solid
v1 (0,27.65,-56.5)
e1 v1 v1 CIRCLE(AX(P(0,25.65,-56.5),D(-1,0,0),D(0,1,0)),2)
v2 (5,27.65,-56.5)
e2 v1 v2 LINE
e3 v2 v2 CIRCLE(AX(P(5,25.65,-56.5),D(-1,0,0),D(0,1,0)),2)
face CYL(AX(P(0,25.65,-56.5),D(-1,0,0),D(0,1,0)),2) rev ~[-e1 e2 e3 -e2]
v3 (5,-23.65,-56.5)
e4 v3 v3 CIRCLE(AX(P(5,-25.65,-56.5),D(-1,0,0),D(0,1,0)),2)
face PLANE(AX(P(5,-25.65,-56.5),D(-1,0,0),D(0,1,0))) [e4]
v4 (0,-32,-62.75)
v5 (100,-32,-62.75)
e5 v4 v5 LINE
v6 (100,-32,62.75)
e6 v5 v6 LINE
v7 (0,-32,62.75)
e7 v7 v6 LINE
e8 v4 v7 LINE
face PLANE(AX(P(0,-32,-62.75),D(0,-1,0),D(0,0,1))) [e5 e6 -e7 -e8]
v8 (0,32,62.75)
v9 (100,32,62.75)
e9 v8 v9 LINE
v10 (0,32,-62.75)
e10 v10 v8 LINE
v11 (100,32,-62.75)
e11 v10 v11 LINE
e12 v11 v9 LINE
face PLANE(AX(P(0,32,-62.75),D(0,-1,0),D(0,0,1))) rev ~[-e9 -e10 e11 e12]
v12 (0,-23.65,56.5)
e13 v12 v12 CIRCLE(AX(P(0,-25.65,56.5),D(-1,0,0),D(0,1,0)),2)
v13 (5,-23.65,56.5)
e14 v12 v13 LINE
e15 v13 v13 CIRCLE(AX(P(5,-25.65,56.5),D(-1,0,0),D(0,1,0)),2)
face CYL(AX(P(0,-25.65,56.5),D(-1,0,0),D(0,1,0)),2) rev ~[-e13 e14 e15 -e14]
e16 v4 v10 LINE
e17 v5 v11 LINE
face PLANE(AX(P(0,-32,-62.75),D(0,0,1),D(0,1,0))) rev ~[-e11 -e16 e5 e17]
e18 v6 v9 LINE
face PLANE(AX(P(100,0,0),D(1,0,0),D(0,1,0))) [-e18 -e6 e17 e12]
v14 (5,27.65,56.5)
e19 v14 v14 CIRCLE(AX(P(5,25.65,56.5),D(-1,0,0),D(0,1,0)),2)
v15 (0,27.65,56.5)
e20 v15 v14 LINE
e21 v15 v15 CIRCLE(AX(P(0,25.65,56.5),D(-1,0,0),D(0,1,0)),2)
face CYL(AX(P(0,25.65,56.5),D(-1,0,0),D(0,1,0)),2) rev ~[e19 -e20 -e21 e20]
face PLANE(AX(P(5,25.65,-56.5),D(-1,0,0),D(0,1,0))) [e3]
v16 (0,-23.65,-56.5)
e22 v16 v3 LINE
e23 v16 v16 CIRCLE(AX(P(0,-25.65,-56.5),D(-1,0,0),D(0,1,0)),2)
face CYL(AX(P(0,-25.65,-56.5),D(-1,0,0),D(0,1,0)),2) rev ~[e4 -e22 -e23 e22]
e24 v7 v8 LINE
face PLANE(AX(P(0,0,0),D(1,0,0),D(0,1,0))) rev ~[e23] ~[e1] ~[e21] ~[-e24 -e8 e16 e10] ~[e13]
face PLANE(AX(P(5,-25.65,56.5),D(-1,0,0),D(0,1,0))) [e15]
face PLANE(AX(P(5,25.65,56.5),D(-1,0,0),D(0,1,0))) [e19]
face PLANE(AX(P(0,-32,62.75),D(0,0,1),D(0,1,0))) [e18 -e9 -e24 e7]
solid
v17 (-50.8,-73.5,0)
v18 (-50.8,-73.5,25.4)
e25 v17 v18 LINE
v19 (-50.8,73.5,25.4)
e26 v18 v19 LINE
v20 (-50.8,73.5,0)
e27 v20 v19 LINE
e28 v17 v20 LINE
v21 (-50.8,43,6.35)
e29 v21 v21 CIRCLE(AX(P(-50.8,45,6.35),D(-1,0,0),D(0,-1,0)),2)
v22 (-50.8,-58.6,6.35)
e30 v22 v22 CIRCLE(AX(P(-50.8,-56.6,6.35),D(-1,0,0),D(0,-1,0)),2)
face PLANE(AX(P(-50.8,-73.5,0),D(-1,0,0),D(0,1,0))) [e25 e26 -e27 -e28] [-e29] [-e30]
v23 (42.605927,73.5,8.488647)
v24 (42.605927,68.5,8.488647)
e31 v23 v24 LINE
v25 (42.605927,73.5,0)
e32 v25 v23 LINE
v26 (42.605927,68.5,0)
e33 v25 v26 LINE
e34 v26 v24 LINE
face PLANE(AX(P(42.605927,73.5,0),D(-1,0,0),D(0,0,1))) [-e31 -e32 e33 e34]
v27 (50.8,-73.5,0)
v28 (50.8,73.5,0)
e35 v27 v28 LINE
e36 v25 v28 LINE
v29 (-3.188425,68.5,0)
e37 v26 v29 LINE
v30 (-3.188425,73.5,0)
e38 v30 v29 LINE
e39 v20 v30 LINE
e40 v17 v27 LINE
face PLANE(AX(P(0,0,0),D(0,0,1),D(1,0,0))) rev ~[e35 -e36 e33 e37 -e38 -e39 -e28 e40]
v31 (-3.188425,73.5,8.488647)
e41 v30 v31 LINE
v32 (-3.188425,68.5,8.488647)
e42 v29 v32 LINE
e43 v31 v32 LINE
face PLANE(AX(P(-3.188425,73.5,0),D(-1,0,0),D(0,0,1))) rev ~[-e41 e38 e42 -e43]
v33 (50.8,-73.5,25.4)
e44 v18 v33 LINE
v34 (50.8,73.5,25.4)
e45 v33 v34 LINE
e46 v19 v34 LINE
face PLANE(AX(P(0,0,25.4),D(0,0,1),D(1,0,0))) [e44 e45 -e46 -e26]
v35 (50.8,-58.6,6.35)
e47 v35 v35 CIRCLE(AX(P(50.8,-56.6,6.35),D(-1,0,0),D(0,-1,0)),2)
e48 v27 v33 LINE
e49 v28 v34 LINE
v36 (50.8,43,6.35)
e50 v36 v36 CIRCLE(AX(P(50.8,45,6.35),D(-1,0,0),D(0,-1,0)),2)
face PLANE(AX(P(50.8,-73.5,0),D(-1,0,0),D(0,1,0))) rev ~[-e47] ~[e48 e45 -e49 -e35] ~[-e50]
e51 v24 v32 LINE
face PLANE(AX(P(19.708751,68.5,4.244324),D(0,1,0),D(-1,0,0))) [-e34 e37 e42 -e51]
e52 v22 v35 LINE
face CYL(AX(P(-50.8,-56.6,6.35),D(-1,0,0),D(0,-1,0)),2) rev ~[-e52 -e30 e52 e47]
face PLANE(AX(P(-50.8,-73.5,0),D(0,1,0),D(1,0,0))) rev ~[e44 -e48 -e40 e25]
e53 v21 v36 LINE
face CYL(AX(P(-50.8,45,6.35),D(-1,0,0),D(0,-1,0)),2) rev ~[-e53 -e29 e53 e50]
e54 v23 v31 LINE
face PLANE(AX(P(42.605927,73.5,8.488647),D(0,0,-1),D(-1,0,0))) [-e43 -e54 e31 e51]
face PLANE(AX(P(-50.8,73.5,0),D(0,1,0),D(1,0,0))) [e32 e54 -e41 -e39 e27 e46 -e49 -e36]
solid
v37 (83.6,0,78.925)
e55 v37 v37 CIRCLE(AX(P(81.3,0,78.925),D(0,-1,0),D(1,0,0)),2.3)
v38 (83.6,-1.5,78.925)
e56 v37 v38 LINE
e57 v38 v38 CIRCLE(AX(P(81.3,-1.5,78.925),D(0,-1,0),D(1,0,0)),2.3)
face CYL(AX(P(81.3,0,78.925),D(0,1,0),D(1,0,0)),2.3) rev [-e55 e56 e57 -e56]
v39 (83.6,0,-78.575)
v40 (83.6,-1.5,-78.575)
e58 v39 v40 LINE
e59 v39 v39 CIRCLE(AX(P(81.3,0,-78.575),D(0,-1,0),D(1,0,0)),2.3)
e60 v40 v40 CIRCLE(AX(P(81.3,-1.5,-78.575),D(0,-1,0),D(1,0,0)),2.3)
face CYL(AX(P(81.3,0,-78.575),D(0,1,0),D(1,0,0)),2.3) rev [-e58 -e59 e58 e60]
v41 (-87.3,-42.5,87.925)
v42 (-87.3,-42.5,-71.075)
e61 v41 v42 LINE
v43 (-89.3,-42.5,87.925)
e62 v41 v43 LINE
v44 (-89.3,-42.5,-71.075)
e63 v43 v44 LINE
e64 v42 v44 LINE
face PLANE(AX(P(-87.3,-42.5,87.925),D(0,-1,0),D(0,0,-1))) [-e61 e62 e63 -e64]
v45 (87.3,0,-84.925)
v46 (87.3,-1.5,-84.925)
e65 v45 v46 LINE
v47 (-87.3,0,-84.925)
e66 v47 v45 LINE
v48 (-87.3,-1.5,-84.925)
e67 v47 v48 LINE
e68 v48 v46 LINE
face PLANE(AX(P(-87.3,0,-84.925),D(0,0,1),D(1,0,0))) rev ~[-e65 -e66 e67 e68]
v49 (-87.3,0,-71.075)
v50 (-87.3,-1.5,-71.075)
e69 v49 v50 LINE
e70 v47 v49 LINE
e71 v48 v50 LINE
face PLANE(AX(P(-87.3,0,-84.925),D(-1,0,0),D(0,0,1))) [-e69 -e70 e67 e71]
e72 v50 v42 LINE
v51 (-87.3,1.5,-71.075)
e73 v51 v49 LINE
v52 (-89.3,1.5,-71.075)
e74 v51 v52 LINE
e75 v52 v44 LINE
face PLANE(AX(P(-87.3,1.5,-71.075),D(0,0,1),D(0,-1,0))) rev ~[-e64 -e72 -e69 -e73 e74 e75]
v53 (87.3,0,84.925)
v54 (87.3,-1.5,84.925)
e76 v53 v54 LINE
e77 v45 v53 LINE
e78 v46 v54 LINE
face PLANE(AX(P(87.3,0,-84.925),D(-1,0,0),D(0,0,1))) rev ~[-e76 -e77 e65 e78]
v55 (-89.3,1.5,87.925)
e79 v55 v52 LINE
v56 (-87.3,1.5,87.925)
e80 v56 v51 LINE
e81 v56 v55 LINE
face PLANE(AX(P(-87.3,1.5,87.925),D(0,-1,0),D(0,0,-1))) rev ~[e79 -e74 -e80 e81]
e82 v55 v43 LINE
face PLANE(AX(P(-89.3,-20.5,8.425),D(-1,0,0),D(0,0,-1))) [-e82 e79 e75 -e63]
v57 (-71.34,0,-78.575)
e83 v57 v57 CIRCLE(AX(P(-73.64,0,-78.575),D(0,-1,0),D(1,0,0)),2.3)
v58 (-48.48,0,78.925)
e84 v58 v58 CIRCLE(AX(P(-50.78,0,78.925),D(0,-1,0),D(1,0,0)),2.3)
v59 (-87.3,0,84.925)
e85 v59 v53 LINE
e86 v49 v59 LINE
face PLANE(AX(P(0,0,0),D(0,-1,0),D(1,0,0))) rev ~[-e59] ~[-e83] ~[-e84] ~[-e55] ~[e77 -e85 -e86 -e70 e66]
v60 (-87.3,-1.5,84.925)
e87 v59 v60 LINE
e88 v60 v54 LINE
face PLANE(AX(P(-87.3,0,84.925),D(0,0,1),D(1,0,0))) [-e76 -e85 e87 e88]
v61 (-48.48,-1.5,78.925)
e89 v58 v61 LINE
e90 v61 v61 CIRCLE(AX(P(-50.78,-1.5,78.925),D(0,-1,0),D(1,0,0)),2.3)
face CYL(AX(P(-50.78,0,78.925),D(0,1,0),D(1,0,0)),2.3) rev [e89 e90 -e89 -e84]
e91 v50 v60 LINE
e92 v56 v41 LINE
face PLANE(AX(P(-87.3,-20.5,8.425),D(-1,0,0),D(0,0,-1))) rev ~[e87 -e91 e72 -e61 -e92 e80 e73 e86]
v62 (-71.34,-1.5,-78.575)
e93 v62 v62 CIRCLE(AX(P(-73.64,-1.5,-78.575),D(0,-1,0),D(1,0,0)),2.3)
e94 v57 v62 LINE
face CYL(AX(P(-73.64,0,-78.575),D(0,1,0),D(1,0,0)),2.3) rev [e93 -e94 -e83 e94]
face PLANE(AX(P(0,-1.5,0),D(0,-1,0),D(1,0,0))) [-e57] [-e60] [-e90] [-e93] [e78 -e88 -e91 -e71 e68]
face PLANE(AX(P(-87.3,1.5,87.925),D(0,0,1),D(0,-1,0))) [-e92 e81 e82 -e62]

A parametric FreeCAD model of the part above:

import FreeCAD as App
import Part
import Sketcher
from FreeCAD import Vector
Q = App.Units.Quantity

doc = App.newDocument("Part")
body = doc.addObject("PartDesign::Body", "Body")

sketch1 = doc.addObject("Sketcher::SketchObject", "Sketch")
body.addObject(sketch1)
sketch1.AttachmentSupport = (doc.XZ_Plane, [""])
sketch1.MapMode = "FlatFace"
sketch1.addGeometry([
    Part.LineSegment(Vector(-87.3, 84.9, 0), Vector(-87.3, -84.9, 0)),
    Part.LineSegment(Vector(-87.3, -84.9, 0), Vector(87.3, -84.9, 0)),
    Part.LineSegment(Vector(87.3, -84.9, 0), Vector(87.3, 84.9, 0)),
    Part.LineSegment(Vector(87.3, 84.9, 0), Vector(-87.3, 84.9, 0)),
    Part.Circle(Vector(-73.6, -78.6, 0), Vector(0, 0, 1), 2.3),
    Part.Circle(Vector(81.3, -78.6, 0), Vector(0, 0, 1), 2.3),
    Part.Circle(Vector(-50.8, 78.9, 0), Vector(0, 0, 1), 2.3),
    Part.Circle(Vector(81.3, 78.9, 0), Vector(0, 0, 1), 2.3),
], False)
sketch1.addConstraint([
    Sketcher.Constraint("Coincident", 0, 2, 1, 1),
    Sketcher.Constraint("Coincident", 1, 2, 2, 1),
    Sketcher.Constraint("Coincident", 2, 2, 3, 1),
    Sketcher.Constraint("Coincident", 3, 2, 0, 1),
    Sketcher.Constraint("Vertical", 0),
    Sketcher.Constraint("Horizontal", 1),
    Sketcher.Constraint("Vertical", 2),
    Sketcher.Constraint("Horizontal", 3),
    Sketcher.Constraint("Equal", 4, 5),
    Sketcher.Constraint("Equal", 5, 6),
    Sketcher.Constraint("Equal", 6, 7),
    Sketcher.Constraint("Symmetric", 0, 2, 2, 2, -1, 1),
    Sketcher.Constraint("Horizontal", 4, 3, 5, 3),
    Sketcher.Constraint("Horizontal", 6, 3, 7, 3),
    Sketcher.Constraint("Vertical", 5, 3, 7, 3),
    Sketcher.Constraint("Diameter", 4, Q("4.6 mm")),
    Sketcher.Constraint("DistanceX", 1, 1, 1, 2, Q("174.6 mm")),
    Sketcher.Constraint("DistanceX", 5, 3, 1, 2, Q("6 mm")),
    Sketcher.Constraint("DistanceY", 7, 3, 2, 2, Q("6 mm")),
    Sketcher.Constraint("DistanceY", 0, 2, 0, 1, Q("169.85 mm")),
    Sketcher.Constraint("DistanceY", 4, 3, 6, 3, Q("157.5 mm")),
    Sketcher.Constraint("DistanceX", 4, 3, -1, 1, Q("73.64 mm")),
    Sketcher.Constraint("DistanceX", 6, 3, -1, 1, Q("50.78 mm")),
])
pad1 = doc.addObject("PartDesign::Pad", "Pad")
body.addObject(pad1)
pad1.Profile = sketch1
pad1.Length = 1.5

sketch2 = doc.addObject("Sketcher::SketchObject", "Sketch001")
body.addObject(sketch2)
sketch2.AttachmentSupport = (doc.YZ_Plane, [""])
sketch2.MapMode = "FlatFace"
sketch2.AttachmentOffset = App.Placement(Vector(0, 0, -87.3), App.Rotation())
sketch2.addGeometry([
    Part.LineSegment(Vector(-42, 88, 0), Vector(2, 88, 0)),
    Part.LineSegment(Vector(2, 88, 0), Vector(2, -71, 0)),
    Part.LineSegment(Vector(2, -71, 0), Vector(-42, -71, 0)),
    Part.LineSegment(Vector(-42, -71, 0), Vector(-42, 88, 0)),
], False)
sketch2.addConstraint([
    Sketcher.Constraint("Coincident", 0, 2, 1, 1),
    Sketcher.Constraint("Coincident", 1, 2, 2, 1),
    Sketcher.Constraint("Coincident", 2, 2, 3, 1),
    Sketcher.Constraint("Coincident", 3, 2, 0, 1),
    Sketcher.Constraint("Horizontal", 0),
    Sketcher.Constraint("Vertical", 1),
    Sketcher.Constraint("Horizontal", 2),
    Sketcher.Constraint("Vertical", 3),
    Sketcher.Constraint("DistanceX", 0, 1, 0, 2, Q("44 mm")),
    Sketcher.Constraint("DistanceY", 1, 2, 1, 1, Q("159 mm")),
    Sketcher.Constraint("DistanceX", -1, 1, 0, 2, Q("1.5 mm")),
    Sketcher.Constraint("DistanceY", -1, 1, 0, 2, Q("87.925 mm")),
])
pad2 = doc.addObject("PartDesign::Pad", "Pad001")
body.addObject(pad2)
pad2.Profile = sketch2
pad2.Length = 2
pad2.Reversed = True
body2 = doc.addObject("PartDesign::Body", "Body001")

sketch3 = doc.addObject("Sketcher::SketchObject", "Sketch002")
body2.addObject(sketch3)
sketch3.AttachmentSupport = (doc.getObject("YZ_Plane001"), [""])
sketch3.MapMode = "FlatFace"
sketch3.addGeometry([
    Part.LineSegment(Vector(-32, 63, 0), Vector(-32, -63, 0)),
    Part.LineSegment(Vector(-32, -63, 0), Vector(32, -63, 0)),
    Part.LineSegment(Vector(32, -63, 0), Vector(32, 63, 0)),
    Part.LineSegment(Vector(32, 63, 0), Vector(-32, 63, 0)),
], False)
sketch3.addConstraint([
    Sketcher.Constraint("Coincident", 0, 2, 1, 1),
    Sketcher.Constraint("Coincident", 1, 2, 2, 1),
    Sketcher.Constraint("Coincident", 2, 2, 3, 1),
    Sketcher.Constraint("Coincident", 3, 2, 0, 1),
    Sketcher.Constraint("Vertical", 0),
    Sketcher.Constraint("Horizontal", 1),
    Sketcher.Constraint("Vertical", 2),
    Sketcher.Constraint("Horizontal", 3),
    Sketcher.Constraint("Symmetric", 0, 2, 2, 2, -1, 1),
    Sketcher.Constraint("DistanceX", 1, 1, 1, 2, Q("64 mm")),
    Sketcher.Constraint("DistanceY", 0, 2, 0, 1, Q("125.5 mm")),
])
pad3 = doc.addObject("PartDesign::Pad", "Pad002")
body2.addObject(pad3)
pad3.Profile = sketch3
pad3.Length = 100

sketch4 = doc.addObject("Sketcher::SketchObject", "Sketch003")
body2.addObject(sketch4)
sketch4.AttachmentSupport = (doc.getObject("YZ_Plane001"), [""])
sketch4.MapMode = "FlatFace"
sketch4.addGeometry([
    Part.Circle(Vector(-25.6, 56.5, 0), Vector(0, 0, 1), 2),
    Part.Circle(Vector(25.6, 56.5, 0), Vector(0, 0, 1), 2),
    Part.Circle(Vector(25.6, -56.5, 0), Vector(0, 0, 1), 2),
    Part.Circle(Vector(-25.6, -56.5, 0), Vector(0, 0, 1), 2),
], False)
sketch4.addConstraint([
    Sketcher.Constraint("Equal", 0, 1),
    Sketcher.Constraint("Equal", 1, 2),
    Sketcher.Constraint("Equal", 2, 3),
    Sketcher.Constraint("Symmetric", 0, 3, 2, 3, -1, 1),
    Sketcher.Constraint("Symmetric", 1, 3, 3, 3, -1, 1),
    Sketcher.Constraint("Symmetric", 0, 3, 1, 3, -2),
    Sketcher.Constraint("Diameter", 0, Q("4 mm")),
    Sketcher.Constraint("DistanceY", 2, 3, 1, 3, Q("113 mm")),
    Sketcher.Constraint("DistanceX", 0, 3, 1, 3, Q("51.3 mm")),
])
pocket1 = doc.addObject("PartDesign::Pocket", "Pocket")
body2.addObject(pocket1)
pocket1.Profile = sketch4
pocket1.Length = 5
pocket1.Reversed = True
body3 = doc.addObject("PartDesign::Body", "Body002")

sketch5 = doc.addObject("Sketcher::SketchObject", "Sketch004")
body3.addObject(sketch5)
sketch5.AttachmentSupport = (doc.getObject("XY_Plane002"), [""])
sketch5.MapMode = "FlatFace"
sketch5.addGeometry([
    Part.LineSegment(Vector(-51, 74, 0), Vector(-51, -74, 0)),
    Part.LineSegment(Vector(-51, -74, 0), Vector(51, -74, 0)),
    Part.LineSegment(Vector(51, -74, 0), Vector(51, 74, 0)),
    Part.LineSegment(Vector(51, 74, 0), Vector(-51, 74, 0)),
], False)
sketch5.addConstraint([
    Sketcher.Constraint("Coincident", 0, 2, 1, 1),
    Sketcher.Constraint("Coincident", 1, 2, 2, 1),
    Sketcher.Constraint("Coincident", 2, 2, 3, 1),
    Sketcher.Constraint("Coincident", 3, 2, 0, 1),
    Sketcher.Constraint("Vertical", 0),
    Sketcher.Constraint("Horizontal", 1),
    Sketcher.Constraint("Vertical", 2),
    Sketcher.Constraint("Horizontal", 3),
    Sketcher.Constraint("Symmetric", 0, 2, 2, 2, -1, 1),
    Sketcher.Constraint("DistanceY", 0, 2, 0, 1, Q("147 mm")),
    Sketcher.Constraint("DistanceX", 1, 1, 1, 2, Q("101.6 mm")),
])
pad4 = doc.addObject("PartDesign::Pad", "Pad003")
body3.addObject(pad4)
pad4.Profile = sketch5
pad4.Length = 25.4

sketch6 = doc.addObject("Sketcher::SketchObject", "Sketch005")
body3.addObject(sketch6)
sketch6.AttachmentSupport = (doc.getObject("XZ_Plane002"), [""])
sketch6.MapMode = "FlatFace"
sketch6.AttachmentOffset = App.Placement(Vector(0, 0, -73.5), App.Rotation())
sketch6.addGeometry([
    Part.LineSegment(Vector(43, 8, 0), Vector(43, 0, 0)),
    Part.LineSegment(Vector(43, 0, 0), Vector(-3, 0, 0)),
    Part.LineSegment(Vector(-3, 0, 0), Vector(-3, 8, 0)),
    Part.LineSegment(Vector(-3, 8, 0), Vector(43, 8, 0)),
], False)
sketch6.addConstraint([
    Sketcher.Constraint("Coincident", 0, 2, 1, 1),
    Sketcher.Constraint("Coincident", 1, 2, 2, 1),
    Sketcher.Constraint("Coincident", 2, 2, 3, 1),
    Sketcher.Constraint("Coincident", 3, 2, 0, 1),
    Sketcher.Constraint("Vertical", 0),
    Sketcher.Constraint("Horizontal", 1),
    Sketcher.Constraint("Vertical", 2),
    Sketcher.Constraint("Horizontal", 3),
    Sketcher.Constraint("PointOnObject", 0, 2, -1),
    Sketcher.Constraint("DistanceX", 1, 2, 1, 1, Q("45.794352 mm")),
    Sketcher.Constraint("DistanceY", 0, 2, 0, 1, Q("8.488647 mm")),
    Sketcher.Constraint("DistanceX", -1, 1, 0, 2, Q("42.605927 mm")),
])
pocket2 = doc.addObject("PartDesign::Pocket", "Pocket001")
body3.addObject(pocket2)
pocket2.Profile = sketch6
pocket2.Length = 5
pocket2.Reversed = True

sketch7 = doc.addObject("Sketcher::SketchObject", "Sketch006")
body3.addObject(sketch7)
sketch7.AttachmentSupport = (doc.getObject("YZ_Plane002"), [""])
sketch7.MapMode = "FlatFace"
sketch7.AttachmentOffset = App.Placement(Vector(0, 0, -50.8), App.Rotation())
sketch7.addGeometry([
    Part.Circle(Vector(45, 6.3, 0), Vector(0, 0, 1), 2),
    Part.Circle(Vector(-56.6, 6.3, 0), Vector(0, 0, 1), 2),
], False)
sketch7.addConstraint([
    Sketcher.Constraint("Equal", 0, 1),
    Sketcher.Constraint("Horizontal", 0, 3, 1, 3),
    Sketcher.Constraint("Diameter", 0, Q("4 mm")),
    Sketcher.Constraint("DistanceX", -1, 1, 0, 3, Q("45 mm")),
    Sketcher.Constraint("DistanceX", 1, 3, -1, 1, Q("56.6 mm")),
    Sketcher.Constraint("DistanceY", -1, 1, 0, 3, Q("6.35 mm")),
])
pocket3 = doc.addObject("PartDesign::Pocket", "Pocket002")
body3.addObject(pocket3)
pocket3.Profile = sketch7
pocket3.Type = "ThroughAll"
pocket3.Reversed = True

doc.recompute()
